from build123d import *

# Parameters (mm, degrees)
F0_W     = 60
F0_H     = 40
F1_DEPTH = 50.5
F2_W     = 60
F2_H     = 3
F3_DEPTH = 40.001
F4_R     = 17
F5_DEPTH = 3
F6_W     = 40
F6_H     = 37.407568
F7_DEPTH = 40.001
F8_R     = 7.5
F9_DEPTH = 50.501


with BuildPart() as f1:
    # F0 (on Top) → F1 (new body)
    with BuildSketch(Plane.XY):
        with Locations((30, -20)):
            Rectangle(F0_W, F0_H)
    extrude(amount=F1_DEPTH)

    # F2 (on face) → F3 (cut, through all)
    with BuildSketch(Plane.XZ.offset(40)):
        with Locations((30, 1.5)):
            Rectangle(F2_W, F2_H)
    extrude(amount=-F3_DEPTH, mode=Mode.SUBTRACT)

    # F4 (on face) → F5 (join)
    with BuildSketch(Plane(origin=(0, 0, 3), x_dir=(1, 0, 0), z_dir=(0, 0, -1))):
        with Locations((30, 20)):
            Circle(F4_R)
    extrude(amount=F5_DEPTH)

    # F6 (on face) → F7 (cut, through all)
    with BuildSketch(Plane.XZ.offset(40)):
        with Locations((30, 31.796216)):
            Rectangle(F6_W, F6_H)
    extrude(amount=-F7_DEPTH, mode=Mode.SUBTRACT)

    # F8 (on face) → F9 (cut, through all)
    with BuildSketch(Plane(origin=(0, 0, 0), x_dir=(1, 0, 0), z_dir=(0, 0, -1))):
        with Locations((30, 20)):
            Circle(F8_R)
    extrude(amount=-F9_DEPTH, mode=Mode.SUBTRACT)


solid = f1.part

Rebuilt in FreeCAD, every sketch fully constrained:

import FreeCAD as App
import Part
import Sketcher
from FreeCAD import Vector
Q = App.Units.Quantity

doc = App.newDocument("Part")
body = doc.addObject("PartDesign::Body", "Body")

# Sketch on XY plane
sketch1 = body.newObject("Sketcher::SketchObject", "Sketch")
sketch1.AttachmentSupport = (doc.getObject("XY_Plane"), [""])
sketch1.MapMode = "FlatFace"
sketch1.addGeometry(Part.LineSegment(Vector(0, 0, 0), Vector(0, -40, 0)), False)
sketch1.addGeometry(Part.LineSegment(Vector(0, -40, 0), Vector(60, -40, 0)), False)
sketch1.addGeometry(Part.LineSegment(Vector(60, -40, 0), Vector(60, 0, 0)), False)
sketch1.addGeometry(Part.LineSegment(Vector(60, 0, 0), Vector(0, 0, 0)), False)
sketch1.addConstraint(Sketcher.Constraint("Coincident", 0, 2, 1, 1))
sketch1.addConstraint(Sketcher.Constraint("Coincident", 1, 2, 2, 1))
sketch1.addConstraint(Sketcher.Constraint("Coincident", 2, 2, 3, 1))
sketch1.addConstraint(Sketcher.Constraint("Coincident", 3, 2, 0, 1))
sketch1.addConstraint(Sketcher.Constraint("Vertical", 0))
sketch1.addConstraint(Sketcher.Constraint("Horizontal", 1))
sketch1.addConstraint(Sketcher.Constraint("Vertical", 2))
sketch1.addConstraint(Sketcher.Constraint("Horizontal", 3))
sketch1.addConstraint(Sketcher.Constraint("Coincident", 3, 2, -1, 1))
sketch1.addConstraint(Sketcher.Constraint("DistanceX", 1, 1, 1, 2, Q("60 mm")))
sketch1.addConstraint(Sketcher.Constraint("DistanceY", 0, 2, 0, 1, Q("40 mm")))
pad1 = body.newObject("PartDesign::Pad", "Pad")
pad1.Profile = sketch1
pad1.Length = 50.5

# Sketch on XZ plane
sketch2 = body.newObject("Sketcher::SketchObject", "Sketch001")
sketch2.AttachmentSupport = (doc.getObject("XZ_Plane"), [""])
sketch2.MapMode = "FlatFace"
sketch2.AttachmentOffset = App.Placement(Vector(0, 0, 40), App.Rotation())
sketch2.addGeometry(Part.LineSegment(Vector(0, 3, 0), Vector(0, 0, 0)), False)
sketch2.addGeometry(Part.LineSegment(Vector(0, 0, 0), Vector(60, 0, 0)), False)
sketch2.addGeometry(Part.LineSegment(Vector(60, 0, 0), Vector(60, 3, 0)), False)
sketch2.addGeometry(Part.LineSegment(Vector(60, 3, 0), Vector(0, 3, 0)), False)
sketch2.addConstraint(Sketcher.Constraint("Coincident", 0, 2, 1, 1))
sketch2.addConstraint(Sketcher.Constraint("Coincident", 1, 2, 2, 1))
sketch2.addConstraint(Sketcher.Constraint("Coincident", 2, 2, 3, 1))
sketch2.addConstraint(Sketcher.Constraint("Coincident", 3, 2, 0, 1))
sketch2.addConstraint(Sketcher.Constraint("Vertical", 0))
sketch2.addConstraint(Sketcher.Constraint("Horizontal", 1))
sketch2.addConstraint(Sketcher.Constraint("Vertical", 2))
sketch2.addConstraint(Sketcher.Constraint("Horizontal", 3))
sketch2.addConstraint(Sketcher.Constraint("Coincident", 0, 2, -1, 1))
sketch2.addConstraint(Sketcher.Constraint("DistanceX", 1, 1, 1, 2, Q("60 mm")))
sketch2.addConstraint(Sketcher.Constraint("DistanceY", 0, 2, 0, 1, Q("3 mm")))
pocket1 = body.newObject("PartDesign::Pocket", "Pocket")
pocket1.Profile = sketch2
pocket1.Type = "ThroughAll"

# Sketch on XY plane
sketch3 = body.newObject("Sketcher::SketchObject", "Sketch002")
sketch3.AttachmentSupport = (doc.getObject("XY_Plane"), [""])
sketch3.MapMode = "FlatFace"
sketch3.AttachmentOffset = App.Placement(Vector(0, 0, 3), App.Rotation())
sketch3.addGeometry(Part.Circle(Vector(30, -20, 0), Vector(0, 0, 1), 17), False)
sketch3.addConstraint(Sketcher.Constraint("Diameter", 0, Q("34 mm")))
sketch3.addConstraint(Sketcher.Constraint("DistanceX", -1, 1, 0, 3, Q("30 mm")))
sketch3.addConstraint(Sketcher.Constraint("DistanceY", 0, 3, -1, 1, Q("20 mm")))
pad2 = body.newObject("PartDesign::Pad", "Pad001")
pad2.Profile = sketch3
pad2.Length = 3
pad2.Reversed = True

# Sketch on XZ plane
sketch4 = body.newObject("Sketcher::SketchObject", "Sketch003")
sketch4.AttachmentSupport = (doc.getObject("XZ_Plane"), [""])
sketch4.MapMode = "FlatFace"
sketch4.AttachmentOffset = App.Placement(Vector(0, 0, 40), App.Rotation())
sketch4.addGeometry(Part.LineSegment(Vector(10, 50, 0), Vector(10, 13, 0)), False)
sketch4.addGeometry(Part.LineSegment(Vector(10, 13, 0), Vector(50, 13, 0)), False)
sketch4.addGeometry(Part.LineSegment(Vector(50, 13, 0), Vector(50, 50, 0)), False)
sketch4.addGeometry(Part.LineSegment(Vector(50, 50, 0), Vector(10, 50, 0)), False)
sketch4.addConstraint(Sketcher.Constraint("Coincident", 0, 2, 1, 1))
sketch4.addConstraint(Sketcher.Constraint("Coincident", 1, 2, 2, 1))
sketch4.addConstraint(Sketcher.Constraint("Coincident", 2, 2, 3, 1))
sketch4.addConstraint(Sketcher.Constraint("Coincident", 3, 2, 0, 1))
sketch4.addConstraint(Sketcher.Constraint("Vertical", 0))
sketch4.addConstraint(Sketcher.Constraint("Horizontal", 1))
sketch4.addConstraint(Sketcher.Constraint("Vertical", 2))
sketch4.addConstraint(Sketcher.Constraint("Horizontal", 3))
sketch4.addConstraint(Sketcher.Constraint("DistanceX", 1, 1, 1, 2, Q("40 mm")))
sketch4.addConstraint(Sketcher.Constraint("DistanceX", -1, 1, 0, 2, Q("10 mm")))
sketch4.addConstraint(Sketcher.Constraint("DistanceY", -1, 1, 2, 2, Q("50.5 mm")))
sketch4.addConstraint(Sketcher.Constraint("DistanceY", 0, 2, 0, 1, Q("37.407568 mm")))
pocket2 = body.newObject("PartDesign::Pocket", "Pocket001")
pocket2.Profile = sketch4
pocket2.Type = "ThroughAll"

# Sketch on XY plane
sketch5 = body.newObject("Sketcher::SketchObject", "Sketch004")
sketch5.AttachmentSupport = (doc.getObject("XY_Plane"), [""])
sketch5.MapMode = "FlatFace"
sketch5.addGeometry(Part.Circle(Vector(30, -20, 0), Vector(0, 0, 1), 8), False)
sketch5.addConstraint(Sketcher.Constraint("Diameter", 0, Q("15 mm")))
sketch5.addConstraint(Sketcher.Constraint("DistanceX", -1, 1, 0, 3, Q("30 mm")))
sketch5.addConstraint(Sketcher.Constraint("DistanceY", 0, 3, -1, 1, Q("20 mm")))
pocket3 = body.newObject("PartDesign::Pocket", "Pocket002")
pocket3.Profile = sketch5
pocket3.Type = "ThroughAll"
pocket3.Reversed = True

doc.recompute()
